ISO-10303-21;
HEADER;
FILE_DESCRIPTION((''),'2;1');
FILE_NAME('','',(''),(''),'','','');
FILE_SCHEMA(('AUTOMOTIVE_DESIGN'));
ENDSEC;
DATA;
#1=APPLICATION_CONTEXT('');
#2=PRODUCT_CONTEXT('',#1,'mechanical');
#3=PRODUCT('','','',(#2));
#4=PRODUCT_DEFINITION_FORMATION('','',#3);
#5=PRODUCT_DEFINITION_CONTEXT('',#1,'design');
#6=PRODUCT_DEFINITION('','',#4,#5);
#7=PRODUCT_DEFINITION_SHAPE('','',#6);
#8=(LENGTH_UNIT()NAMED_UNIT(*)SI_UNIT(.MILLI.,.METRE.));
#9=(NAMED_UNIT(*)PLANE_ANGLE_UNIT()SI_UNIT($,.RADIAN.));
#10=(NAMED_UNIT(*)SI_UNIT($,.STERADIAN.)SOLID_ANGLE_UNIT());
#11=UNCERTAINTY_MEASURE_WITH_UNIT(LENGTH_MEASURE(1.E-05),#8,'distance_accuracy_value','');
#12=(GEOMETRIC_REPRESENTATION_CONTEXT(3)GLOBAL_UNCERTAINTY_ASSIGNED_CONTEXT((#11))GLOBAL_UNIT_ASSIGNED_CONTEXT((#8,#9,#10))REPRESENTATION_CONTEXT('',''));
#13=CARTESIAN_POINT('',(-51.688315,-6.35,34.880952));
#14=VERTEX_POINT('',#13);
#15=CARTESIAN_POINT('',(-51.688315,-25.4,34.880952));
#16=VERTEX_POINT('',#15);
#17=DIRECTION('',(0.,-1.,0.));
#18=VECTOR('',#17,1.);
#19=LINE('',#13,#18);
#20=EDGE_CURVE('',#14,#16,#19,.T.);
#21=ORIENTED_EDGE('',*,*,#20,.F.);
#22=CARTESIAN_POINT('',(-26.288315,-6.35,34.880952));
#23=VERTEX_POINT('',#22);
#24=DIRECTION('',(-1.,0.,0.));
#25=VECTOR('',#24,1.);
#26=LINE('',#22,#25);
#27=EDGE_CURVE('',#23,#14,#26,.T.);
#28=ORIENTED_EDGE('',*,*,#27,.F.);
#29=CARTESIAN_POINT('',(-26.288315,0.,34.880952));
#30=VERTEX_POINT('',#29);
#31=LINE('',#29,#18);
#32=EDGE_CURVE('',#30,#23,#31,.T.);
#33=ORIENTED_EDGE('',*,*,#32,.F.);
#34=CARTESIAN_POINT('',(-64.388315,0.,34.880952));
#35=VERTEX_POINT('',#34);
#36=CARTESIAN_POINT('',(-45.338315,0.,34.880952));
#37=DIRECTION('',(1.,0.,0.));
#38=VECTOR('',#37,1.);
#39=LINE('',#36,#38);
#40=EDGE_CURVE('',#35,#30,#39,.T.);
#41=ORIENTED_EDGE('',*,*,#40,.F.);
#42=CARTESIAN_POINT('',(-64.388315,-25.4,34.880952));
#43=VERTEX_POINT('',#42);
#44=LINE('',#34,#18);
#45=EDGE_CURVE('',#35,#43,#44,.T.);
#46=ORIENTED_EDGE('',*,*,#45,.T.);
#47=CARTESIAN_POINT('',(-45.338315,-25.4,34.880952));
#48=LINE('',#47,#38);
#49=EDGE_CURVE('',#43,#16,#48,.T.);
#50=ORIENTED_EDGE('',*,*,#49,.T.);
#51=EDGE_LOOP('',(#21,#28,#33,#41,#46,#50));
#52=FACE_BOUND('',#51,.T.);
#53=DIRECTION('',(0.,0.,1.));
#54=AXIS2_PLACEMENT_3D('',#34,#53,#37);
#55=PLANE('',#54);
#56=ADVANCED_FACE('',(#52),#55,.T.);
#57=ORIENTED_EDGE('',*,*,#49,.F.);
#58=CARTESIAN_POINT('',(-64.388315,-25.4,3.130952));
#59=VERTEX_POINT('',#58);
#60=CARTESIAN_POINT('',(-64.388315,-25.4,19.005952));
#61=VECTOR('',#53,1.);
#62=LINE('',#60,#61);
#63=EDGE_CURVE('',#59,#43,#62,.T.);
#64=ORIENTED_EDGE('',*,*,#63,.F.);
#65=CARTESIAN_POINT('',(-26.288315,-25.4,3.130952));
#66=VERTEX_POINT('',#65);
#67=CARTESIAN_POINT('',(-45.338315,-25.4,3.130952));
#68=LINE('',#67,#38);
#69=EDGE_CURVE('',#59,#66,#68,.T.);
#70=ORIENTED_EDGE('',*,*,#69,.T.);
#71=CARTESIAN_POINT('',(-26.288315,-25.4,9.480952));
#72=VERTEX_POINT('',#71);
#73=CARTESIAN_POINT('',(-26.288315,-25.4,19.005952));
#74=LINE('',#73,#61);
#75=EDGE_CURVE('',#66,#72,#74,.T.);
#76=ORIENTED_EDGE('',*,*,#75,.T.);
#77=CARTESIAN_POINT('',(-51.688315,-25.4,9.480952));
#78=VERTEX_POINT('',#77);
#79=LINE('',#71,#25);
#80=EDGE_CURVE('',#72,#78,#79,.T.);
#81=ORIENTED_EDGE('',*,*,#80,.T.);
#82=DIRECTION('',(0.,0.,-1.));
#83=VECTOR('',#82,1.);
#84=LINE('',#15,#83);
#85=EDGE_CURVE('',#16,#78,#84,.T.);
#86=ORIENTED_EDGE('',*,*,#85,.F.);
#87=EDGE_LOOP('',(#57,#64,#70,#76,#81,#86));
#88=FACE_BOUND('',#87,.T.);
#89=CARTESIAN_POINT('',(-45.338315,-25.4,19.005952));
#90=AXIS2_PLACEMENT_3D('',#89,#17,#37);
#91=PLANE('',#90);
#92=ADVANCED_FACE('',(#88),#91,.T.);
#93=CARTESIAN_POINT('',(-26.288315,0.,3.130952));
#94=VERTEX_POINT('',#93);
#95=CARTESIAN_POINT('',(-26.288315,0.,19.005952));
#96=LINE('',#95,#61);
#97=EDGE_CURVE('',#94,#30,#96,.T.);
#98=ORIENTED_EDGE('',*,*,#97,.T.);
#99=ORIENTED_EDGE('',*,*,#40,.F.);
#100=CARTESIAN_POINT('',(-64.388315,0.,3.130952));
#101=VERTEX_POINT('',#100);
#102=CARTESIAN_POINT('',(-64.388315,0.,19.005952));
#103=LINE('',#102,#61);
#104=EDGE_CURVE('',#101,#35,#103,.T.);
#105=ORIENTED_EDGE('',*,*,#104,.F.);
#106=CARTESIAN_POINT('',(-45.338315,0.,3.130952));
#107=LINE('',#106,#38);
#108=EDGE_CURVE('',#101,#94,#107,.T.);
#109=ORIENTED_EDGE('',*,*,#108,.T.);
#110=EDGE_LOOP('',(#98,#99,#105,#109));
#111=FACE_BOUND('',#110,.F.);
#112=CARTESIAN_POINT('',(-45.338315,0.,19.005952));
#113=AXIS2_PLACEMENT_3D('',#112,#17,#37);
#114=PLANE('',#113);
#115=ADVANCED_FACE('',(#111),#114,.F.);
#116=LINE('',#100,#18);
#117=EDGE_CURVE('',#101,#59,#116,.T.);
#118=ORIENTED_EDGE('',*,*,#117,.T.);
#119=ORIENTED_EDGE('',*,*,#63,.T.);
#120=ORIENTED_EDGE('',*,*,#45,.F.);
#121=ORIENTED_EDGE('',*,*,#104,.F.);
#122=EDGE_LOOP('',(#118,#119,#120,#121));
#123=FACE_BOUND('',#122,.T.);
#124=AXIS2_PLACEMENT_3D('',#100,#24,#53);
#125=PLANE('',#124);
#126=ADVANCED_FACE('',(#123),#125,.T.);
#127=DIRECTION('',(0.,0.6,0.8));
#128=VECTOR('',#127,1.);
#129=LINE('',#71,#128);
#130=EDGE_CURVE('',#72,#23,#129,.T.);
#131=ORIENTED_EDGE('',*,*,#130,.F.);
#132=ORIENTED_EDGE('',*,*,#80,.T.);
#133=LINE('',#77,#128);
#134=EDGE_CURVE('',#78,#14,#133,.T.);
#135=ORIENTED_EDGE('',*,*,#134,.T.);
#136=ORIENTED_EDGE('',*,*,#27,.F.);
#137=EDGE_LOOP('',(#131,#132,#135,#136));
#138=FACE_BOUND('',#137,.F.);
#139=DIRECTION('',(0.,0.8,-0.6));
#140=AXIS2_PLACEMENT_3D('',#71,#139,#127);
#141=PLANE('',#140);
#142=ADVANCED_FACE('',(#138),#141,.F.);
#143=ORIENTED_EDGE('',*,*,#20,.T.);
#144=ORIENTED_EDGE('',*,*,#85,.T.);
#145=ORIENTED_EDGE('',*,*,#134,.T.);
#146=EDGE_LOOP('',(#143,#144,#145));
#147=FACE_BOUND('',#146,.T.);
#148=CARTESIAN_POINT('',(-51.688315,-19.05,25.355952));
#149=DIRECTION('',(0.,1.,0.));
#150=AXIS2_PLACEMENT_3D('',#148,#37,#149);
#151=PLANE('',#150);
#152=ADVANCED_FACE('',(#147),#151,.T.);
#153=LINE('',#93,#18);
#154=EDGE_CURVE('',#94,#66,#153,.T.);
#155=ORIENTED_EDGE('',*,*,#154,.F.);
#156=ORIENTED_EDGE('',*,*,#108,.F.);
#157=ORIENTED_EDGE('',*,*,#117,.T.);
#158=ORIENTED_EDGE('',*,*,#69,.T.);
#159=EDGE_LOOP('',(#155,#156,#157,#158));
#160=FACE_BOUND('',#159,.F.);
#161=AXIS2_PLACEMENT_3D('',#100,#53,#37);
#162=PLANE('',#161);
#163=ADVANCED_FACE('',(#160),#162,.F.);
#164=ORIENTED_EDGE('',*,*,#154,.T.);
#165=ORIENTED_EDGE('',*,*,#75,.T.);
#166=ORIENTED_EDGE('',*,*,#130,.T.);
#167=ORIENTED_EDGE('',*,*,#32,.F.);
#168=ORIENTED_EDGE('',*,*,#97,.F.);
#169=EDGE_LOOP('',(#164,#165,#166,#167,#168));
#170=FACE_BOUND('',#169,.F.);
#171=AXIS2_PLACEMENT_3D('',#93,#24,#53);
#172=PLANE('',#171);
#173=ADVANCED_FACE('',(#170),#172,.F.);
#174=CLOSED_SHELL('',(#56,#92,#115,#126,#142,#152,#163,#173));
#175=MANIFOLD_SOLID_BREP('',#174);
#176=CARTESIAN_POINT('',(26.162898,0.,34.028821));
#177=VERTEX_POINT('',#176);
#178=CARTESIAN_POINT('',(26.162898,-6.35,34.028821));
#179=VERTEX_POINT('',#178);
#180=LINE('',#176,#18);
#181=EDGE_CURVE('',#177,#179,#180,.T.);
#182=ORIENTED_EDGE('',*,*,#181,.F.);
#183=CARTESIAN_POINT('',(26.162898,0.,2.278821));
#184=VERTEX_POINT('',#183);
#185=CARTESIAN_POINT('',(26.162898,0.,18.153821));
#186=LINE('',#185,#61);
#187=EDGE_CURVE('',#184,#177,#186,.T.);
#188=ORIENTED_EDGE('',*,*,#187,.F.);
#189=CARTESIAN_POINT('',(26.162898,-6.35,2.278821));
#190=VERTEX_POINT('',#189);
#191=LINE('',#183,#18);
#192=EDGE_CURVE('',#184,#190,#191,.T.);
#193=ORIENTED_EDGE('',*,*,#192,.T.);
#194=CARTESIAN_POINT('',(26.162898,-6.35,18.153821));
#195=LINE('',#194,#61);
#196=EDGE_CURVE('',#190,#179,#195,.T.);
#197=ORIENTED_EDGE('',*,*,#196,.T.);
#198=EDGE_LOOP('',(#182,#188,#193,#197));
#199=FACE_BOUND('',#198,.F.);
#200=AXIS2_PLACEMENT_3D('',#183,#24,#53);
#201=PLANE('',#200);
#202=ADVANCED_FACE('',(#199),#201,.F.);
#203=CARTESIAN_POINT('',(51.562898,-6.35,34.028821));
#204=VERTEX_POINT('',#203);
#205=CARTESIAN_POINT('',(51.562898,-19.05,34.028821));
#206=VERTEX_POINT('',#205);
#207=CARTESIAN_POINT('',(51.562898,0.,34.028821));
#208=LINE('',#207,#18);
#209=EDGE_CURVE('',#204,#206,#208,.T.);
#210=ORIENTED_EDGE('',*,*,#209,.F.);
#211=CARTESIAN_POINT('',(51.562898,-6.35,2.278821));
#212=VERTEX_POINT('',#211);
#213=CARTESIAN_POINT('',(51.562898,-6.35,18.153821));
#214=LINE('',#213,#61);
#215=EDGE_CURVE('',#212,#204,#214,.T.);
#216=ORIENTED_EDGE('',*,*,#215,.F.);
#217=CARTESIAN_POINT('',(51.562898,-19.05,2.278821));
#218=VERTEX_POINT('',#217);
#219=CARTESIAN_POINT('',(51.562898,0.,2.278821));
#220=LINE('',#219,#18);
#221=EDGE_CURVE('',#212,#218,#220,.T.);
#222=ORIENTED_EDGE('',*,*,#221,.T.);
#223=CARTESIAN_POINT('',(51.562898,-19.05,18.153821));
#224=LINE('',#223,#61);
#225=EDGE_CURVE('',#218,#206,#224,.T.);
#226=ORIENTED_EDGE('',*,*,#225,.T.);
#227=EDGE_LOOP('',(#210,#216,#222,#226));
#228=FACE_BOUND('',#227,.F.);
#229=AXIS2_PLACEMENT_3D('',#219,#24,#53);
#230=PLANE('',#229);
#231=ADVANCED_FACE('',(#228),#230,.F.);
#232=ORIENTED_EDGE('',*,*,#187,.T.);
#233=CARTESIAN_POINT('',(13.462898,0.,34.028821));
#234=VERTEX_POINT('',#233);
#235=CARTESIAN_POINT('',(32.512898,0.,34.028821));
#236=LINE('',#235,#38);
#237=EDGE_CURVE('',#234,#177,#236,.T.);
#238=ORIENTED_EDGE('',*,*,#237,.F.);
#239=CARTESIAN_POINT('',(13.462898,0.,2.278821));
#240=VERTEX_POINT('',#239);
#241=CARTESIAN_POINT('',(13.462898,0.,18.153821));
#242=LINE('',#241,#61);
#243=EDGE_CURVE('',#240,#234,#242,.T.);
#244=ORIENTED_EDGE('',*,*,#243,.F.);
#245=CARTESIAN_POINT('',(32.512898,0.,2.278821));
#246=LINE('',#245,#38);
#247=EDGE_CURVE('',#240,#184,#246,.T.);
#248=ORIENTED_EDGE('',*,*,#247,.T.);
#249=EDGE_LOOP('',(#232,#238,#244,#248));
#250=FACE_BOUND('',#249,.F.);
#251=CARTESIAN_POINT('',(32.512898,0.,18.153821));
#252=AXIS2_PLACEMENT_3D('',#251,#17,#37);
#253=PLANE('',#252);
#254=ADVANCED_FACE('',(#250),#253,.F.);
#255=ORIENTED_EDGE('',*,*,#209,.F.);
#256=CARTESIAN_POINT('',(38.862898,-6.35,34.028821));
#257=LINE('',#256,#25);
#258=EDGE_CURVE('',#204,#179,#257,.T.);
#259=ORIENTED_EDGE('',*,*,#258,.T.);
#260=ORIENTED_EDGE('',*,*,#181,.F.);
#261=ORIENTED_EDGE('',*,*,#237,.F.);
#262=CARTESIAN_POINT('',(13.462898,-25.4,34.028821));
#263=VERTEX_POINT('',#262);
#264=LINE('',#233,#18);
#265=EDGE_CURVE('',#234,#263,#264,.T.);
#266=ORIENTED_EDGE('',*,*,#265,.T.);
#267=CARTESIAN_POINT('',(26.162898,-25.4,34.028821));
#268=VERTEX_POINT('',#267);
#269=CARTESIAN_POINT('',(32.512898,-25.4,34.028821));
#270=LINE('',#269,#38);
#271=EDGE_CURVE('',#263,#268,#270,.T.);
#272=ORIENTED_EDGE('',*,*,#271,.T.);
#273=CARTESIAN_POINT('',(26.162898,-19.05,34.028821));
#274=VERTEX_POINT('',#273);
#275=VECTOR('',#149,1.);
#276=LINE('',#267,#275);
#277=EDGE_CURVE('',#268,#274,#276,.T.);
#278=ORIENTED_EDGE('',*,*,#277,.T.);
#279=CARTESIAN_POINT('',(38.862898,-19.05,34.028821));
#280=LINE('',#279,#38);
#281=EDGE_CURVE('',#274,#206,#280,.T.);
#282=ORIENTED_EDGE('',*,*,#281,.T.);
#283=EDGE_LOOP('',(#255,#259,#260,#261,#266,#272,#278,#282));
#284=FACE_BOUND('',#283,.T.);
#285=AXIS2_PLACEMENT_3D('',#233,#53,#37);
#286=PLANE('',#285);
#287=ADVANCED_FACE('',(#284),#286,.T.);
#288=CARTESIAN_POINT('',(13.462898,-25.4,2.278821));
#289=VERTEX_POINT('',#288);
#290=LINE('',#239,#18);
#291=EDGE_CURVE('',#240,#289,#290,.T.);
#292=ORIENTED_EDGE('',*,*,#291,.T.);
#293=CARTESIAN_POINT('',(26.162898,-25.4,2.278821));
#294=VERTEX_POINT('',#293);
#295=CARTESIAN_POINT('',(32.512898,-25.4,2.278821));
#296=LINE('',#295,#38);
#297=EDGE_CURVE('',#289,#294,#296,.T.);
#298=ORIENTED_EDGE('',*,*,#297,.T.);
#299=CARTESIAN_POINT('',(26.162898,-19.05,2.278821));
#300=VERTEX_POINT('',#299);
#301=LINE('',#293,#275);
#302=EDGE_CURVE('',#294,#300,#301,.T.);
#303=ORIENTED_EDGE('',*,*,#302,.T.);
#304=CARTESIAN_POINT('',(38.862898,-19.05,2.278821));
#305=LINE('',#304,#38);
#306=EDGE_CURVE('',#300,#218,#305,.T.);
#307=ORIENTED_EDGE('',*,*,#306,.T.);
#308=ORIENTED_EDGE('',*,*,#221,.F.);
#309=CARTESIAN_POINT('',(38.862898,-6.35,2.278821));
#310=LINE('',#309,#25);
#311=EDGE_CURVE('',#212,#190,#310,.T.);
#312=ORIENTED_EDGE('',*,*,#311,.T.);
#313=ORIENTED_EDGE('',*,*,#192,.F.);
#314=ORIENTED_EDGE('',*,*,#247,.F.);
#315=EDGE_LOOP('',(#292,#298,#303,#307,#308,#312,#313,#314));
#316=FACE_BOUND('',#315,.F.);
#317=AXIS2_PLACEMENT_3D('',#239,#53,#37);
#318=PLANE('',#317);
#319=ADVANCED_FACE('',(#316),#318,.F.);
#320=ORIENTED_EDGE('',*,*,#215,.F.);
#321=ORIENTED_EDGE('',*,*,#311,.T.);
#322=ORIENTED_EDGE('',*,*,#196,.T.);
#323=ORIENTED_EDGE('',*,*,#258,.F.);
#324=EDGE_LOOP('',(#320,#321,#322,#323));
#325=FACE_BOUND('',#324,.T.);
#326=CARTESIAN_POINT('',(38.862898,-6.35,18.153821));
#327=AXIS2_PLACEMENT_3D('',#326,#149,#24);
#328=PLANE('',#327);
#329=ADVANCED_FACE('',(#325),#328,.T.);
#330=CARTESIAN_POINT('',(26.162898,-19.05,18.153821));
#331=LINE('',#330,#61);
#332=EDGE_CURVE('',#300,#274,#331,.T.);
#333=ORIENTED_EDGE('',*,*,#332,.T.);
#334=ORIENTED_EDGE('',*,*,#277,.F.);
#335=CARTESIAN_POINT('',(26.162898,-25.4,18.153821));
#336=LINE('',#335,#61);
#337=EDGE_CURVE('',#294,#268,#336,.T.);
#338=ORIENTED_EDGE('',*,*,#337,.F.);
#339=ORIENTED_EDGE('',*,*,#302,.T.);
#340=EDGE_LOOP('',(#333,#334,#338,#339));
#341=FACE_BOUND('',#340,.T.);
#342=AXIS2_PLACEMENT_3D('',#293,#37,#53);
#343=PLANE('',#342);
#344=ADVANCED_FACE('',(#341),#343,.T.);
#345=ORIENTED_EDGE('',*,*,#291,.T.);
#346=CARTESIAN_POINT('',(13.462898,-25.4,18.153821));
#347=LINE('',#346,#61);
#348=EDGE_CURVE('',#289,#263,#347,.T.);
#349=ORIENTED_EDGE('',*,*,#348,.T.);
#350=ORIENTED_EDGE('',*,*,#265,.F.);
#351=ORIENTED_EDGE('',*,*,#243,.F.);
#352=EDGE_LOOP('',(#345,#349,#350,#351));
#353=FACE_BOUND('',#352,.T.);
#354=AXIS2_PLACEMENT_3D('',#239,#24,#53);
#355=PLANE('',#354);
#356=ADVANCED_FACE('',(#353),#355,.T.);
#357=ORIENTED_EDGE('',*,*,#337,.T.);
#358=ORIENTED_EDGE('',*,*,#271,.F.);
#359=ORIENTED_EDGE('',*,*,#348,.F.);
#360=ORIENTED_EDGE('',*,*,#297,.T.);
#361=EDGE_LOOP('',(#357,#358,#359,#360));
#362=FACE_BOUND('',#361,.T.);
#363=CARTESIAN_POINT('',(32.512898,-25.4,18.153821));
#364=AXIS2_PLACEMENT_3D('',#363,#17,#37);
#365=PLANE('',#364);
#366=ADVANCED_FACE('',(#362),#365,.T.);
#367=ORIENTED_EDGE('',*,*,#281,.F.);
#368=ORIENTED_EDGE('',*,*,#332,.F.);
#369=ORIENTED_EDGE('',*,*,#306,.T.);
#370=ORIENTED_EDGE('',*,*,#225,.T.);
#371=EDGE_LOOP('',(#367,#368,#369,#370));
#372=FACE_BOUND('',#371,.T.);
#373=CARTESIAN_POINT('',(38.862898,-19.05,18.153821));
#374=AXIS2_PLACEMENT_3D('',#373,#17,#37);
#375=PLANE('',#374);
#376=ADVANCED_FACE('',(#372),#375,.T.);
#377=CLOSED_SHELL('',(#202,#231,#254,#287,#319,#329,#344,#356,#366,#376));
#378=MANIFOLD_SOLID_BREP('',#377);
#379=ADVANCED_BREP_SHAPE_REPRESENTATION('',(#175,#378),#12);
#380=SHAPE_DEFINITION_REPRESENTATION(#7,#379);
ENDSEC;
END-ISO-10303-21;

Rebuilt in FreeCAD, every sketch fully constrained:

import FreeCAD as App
import Part
import Sketcher

V = App.Vector
Q = App.Units.Quantity

doc = App.newDocument("Part")
body = doc.addObject("PartDesign::Body", "Body")

# Sketch on XZ plane
sketch1 = body.newObject("Sketcher::SketchObject", "Sketch")
sketch1.AttachmentSupport = (doc.getObject("XZ_Plane"), [""])
sketch1.MapMode = "FlatFace"
sketch1.addGeometry([
    Part.LineSegment(V(-64, 35, 0), V(-64, 3, 0)),
    Part.LineSegment(V(-64, 3, 0), V(-26, 3, 0)),
    Part.LineSegment(V(-26, 3, 0), V(-26, 35, 0)),
    Part.LineSegment(V(-26, 35, 0), V(-64, 35, 0)),
], False)
sketch1.addConstraint([
    Sketcher.Constraint("Coincident", 0, 2, 1, 1),
    Sketcher.Constraint("Coincident", 1, 2, 2, 1),
    Sketcher.Constraint("Coincident", 2, 2, 3, 1),
    Sketcher.Constraint("Coincident", 3, 2, 0, 1),
    Sketcher.Constraint("Vertical", 0),
    Sketcher.Constraint("Horizontal", 1),
    Sketcher.Constraint("Vertical", 2),
    Sketcher.Constraint("Horizontal", 3),
    Sketcher.Constraint("DistanceX", 1, 1, 1, 2, Q("1.5 in")),
    Sketcher.Constraint("DistanceY", 0, 2, 0, 1, Q("1.25 in")),
    Sketcher.Constraint("DistanceX", 0, 2, -1, 1, Q("64.388315 mm")),
    Sketcher.Constraint("DistanceY", -1, 1, 0, 2, Q("3.130952 mm")),
])
pad1 = body.newObject("PartDesign::Pad", "Pad")
pad1.Profile = sketch1
pad1.Length = Q("1 in")

# Sketch on YZ plane
sketch2 = body.newObject("Sketcher::SketchObject", "Sketch001")
sketch2.AttachmentSupport = (doc.getObject("YZ_Plane"), [""])
sketch2.MapMode = "FlatFace"
sketch2.AttachmentOffset = App.Placement(V(0, 0, -26.288315), App.Rotation())
sketch2.addGeometry([
    Part.LineSegment(V(-25, 9, 0), V(-6, 35, 0)),
    Part.LineSegment(V(-6, 35, 0), V(-25, 35, 0)),
    Part.LineSegment(V(-25, 35, 0), V(-25, 9, 0)),
], False)
sketch2.addConstraint([
    Sketcher.Constraint("Coincident", 0, 2, 1, 1),
    Sketcher.Constraint("Coincident", 1, 2, 2, 1),
    Sketcher.Constraint("Coincident", 2, 2, 0, 1),
    Sketcher.Constraint("Horizontal", 1),
    Sketcher.Constraint("Vertical", 2),
    Sketcher.Constraint("DistanceY", 2, 2, 2, 1, Q("1 in")),
    Sketcher.Constraint("DistanceX", 1, 2, -1, 1, Q("1 in")),
    Sketcher.Constraint("DistanceX", 1, 2, 1, 1, Q("0.75 in")),
    Sketcher.Constraint("DistanceY", -1, 1, 0, 2, Q("34.880952 mm")),
])
pocket1 = body.newObject("PartDesign::Pocket", "Pocket")
pocket1.Profile = sketch2
pocket1.Length = Q("1 in")
body2 = doc.addObject("PartDesign::Body", "Body001")

# Sketch on XZ plane
sketch3 = body2.newObject("Sketcher::SketchObject", "Sketch002")
sketch3.AttachmentSupport = (doc.getObject("XZ_Plane001"), [""])
sketch3.MapMode = "FlatFace"
sketch3.addGeometry([
    Part.LineSegment(V(13, 34, 0), V(13, 2, 0)),
    Part.LineSegment(V(13, 2, 0), V(52, 2, 0)),
    Part.LineSegment(V(52, 2, 0), V(52, 34, 0)),
    Part.LineSegment(V(52, 34, 0), V(13, 34, 0)),
], False)
sketch3.addConstraint([
    Sketcher.Constraint("Coincident", 0, 2, 1, 1),
    Sketcher.Constraint("Coincident", 1, 2, 2, 1),
    Sketcher.Constraint("Coincident", 2, 2, 3, 1),
    Sketcher.Constraint("Coincident", 3, 2, 0, 1),
    Sketcher.Constraint("Vertical", 0),
    Sketcher.Constraint("Horizontal", 1),
    Sketcher.Constraint("Vertical", 2),
    Sketcher.Constraint("Horizontal", 3),
    Sketcher.Constraint("DistanceX", 1, 1, 1, 2, Q("1.5 in")),
    Sketcher.Constraint("DistanceY", 0, 2, 0, 1, Q("1.25 in")),
    Sketcher.Constraint("DistanceY", -1, 1, 0, 2, Q("2.278821 mm")),
    Sketcher.Constraint("DistanceX", -1, 1, 0, 2, Q("13.462898 mm")),
])
pad2 = body2.newObject("PartDesign::Pad", "Pad001")
pad2.Profile = sketch3
pad2.Length = Q("1 in")

# Sketch on XZ plane
sketch4 = body2.newObject("Sketcher::SketchObject", "Sketch003")
sketch4.AttachmentSupport = (doc.getObject("XZ_Plane001"), [""])
sketch4.MapMode = "FlatFace"
sketch4.AttachmentOffset = App.Placement(V(0, 0, 1 * 25.4), App.Rotation())
sketch4.addGeometry([
    Part.LineSegment(V(26, 34, 0), V(26, 2, 0)),
    Part.LineSegment(V(26, 2, 0), V(52, 2, 0)),
    Part.LineSegment(V(52, 2, 0), V(52, 34, 0)),
    Part.LineSegment(V(52, 34, 0), V(26, 34, 0)),
], False)
sketch4.addConstraint([
    Sketcher.Constraint("Coincident", 0, 2, 1, 1),
    Sketcher.Constraint("Coincident", 1, 2, 2, 1),
    Sketcher.Constraint("Coincident", 2, 2, 3, 1),
    Sketcher.Constraint("Coincident", 3, 2, 0, 1),
    Sketcher.Constraint("Vertical", 0),
    Sketcher.Constraint("Horizontal", 1),
    Sketcher.Constraint("Vertical", 2),
    Sketcher.Constraint("Horizontal", 3),
    Sketcher.Constraint("DistanceX", 1, 1, 1, 2, Q("1 in")),
    Sketcher.Constraint("DistanceY", 0, 2, 0, 1, Q("1.25 in")),
    Sketcher.Constraint("DistanceY", -1, 1, 0, 2, Q("2.278821 mm")),
    Sketcher.Constraint("DistanceX", -1, 1, 0, 2, Q("26.162898 mm")),
])
pocket2 = body2.newObject("PartDesign::Pocket", "Pocket001")
pocket2.Profile = sketch4
pocket2.Length = Q("0.25 in")

# Sketch on XZ plane
sketch5 = body2.newObject("Sketcher::SketchObject", "Sketch004")
sketch5.AttachmentSupport = (doc.getObject("XZ_Plane001"), [""])
sketch5.MapMode = "FlatFace"
sketch5.addGeometry([
    Part.LineSegment(V(52, 34, 0), V(52, 2, 0)),
    Part.LineSegment(V(52, 2, 0), V(26, 2, 0)),
    Part.LineSegment(V(26, 2, 0), V(26, 34, 0)),
    Part.LineSegment(V(26, 34, 0), V(52, 34, 0)),
], False)
sketch5.addConstraint([
    Sketcher.Constraint("Coincident", 0, 2, 1, 1),
    Sketcher.Constraint("Coincident", 1, 2, 2, 1),
    Sketcher.Constraint("Coincident", 2, 2, 3, 1),
    Sketcher.Constraint("Coincident", 3, 2, 0, 1),
    Sketcher.Constraint("Vertical", 0),
    Sketcher.Constraint("Horizontal", 1),
    Sketcher.Constraint("Vertical", 2),
    Sketcher.Constraint("Horizontal", 3),
    Sketcher.Constraint("DistanceX", 1, 2, 1, 1, Q("1 in")),
    Sketcher.Constraint("DistanceY", 0, 2, 0, 1, Q("1.25 in")),
    Sketcher.Constraint("DistanceY", -1, 1, 0, 2, Q("2.278821 mm")),
    Sketcher.Constraint("DistanceX", -1, 1, 0, 2, Q("51.562898 mm")),
])
pocket3 = body2.newObject("PartDesign::Pocket", "Pocket002")
pocket3.Profile = sketch5
pocket3.Length = Q("0.25 in")
pocket3.Reversed = True

doc.recompute()
